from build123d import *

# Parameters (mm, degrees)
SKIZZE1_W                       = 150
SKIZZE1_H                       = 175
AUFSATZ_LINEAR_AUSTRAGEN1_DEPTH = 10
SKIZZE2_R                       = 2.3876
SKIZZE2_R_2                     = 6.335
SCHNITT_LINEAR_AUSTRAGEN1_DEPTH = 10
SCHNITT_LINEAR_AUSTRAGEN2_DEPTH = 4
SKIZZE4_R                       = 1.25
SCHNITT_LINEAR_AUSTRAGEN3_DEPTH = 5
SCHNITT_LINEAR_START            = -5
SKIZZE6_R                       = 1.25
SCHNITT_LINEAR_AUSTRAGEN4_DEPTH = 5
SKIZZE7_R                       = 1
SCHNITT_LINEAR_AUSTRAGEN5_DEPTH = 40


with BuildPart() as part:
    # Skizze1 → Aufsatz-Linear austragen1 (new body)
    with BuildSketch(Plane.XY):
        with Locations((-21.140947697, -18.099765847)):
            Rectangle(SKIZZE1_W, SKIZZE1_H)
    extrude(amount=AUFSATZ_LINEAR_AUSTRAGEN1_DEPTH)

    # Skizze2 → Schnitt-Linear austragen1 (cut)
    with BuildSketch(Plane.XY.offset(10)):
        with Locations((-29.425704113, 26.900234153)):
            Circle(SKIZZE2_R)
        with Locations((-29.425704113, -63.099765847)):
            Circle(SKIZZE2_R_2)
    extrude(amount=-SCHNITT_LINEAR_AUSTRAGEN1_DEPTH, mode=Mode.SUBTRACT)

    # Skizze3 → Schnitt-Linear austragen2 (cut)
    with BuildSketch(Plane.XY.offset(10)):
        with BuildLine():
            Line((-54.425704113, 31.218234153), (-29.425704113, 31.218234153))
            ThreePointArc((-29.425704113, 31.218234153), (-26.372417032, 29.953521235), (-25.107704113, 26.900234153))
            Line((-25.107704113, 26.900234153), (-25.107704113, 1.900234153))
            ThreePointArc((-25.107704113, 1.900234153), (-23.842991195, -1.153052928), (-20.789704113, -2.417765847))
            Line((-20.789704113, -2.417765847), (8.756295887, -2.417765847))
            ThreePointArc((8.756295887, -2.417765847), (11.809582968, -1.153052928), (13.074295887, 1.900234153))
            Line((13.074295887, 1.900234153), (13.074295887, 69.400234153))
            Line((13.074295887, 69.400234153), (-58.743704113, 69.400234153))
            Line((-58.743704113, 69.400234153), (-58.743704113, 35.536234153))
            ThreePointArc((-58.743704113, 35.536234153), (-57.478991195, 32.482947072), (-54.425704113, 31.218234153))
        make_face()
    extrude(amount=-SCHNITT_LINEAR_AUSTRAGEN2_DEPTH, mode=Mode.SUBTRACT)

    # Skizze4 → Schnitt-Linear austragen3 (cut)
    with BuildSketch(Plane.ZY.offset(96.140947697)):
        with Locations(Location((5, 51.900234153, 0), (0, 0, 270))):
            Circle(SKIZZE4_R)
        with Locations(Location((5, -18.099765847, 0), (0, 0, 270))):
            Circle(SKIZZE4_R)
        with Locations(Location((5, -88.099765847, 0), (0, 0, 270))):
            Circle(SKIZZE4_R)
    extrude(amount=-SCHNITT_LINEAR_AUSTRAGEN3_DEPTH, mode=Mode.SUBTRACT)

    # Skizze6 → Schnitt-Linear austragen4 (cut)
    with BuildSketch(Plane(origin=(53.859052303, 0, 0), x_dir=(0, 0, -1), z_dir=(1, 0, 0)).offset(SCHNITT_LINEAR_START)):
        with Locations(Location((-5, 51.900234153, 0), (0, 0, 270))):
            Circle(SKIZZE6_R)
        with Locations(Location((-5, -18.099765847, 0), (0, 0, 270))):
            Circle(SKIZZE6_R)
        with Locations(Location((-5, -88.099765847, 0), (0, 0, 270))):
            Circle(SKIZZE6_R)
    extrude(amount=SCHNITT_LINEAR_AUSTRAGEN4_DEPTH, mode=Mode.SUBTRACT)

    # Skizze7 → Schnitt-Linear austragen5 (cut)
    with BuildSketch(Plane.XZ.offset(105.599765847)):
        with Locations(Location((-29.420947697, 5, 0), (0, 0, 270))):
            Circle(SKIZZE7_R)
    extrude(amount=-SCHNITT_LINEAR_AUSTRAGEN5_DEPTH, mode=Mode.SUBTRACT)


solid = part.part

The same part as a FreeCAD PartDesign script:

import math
import FreeCAD as App
import Part
import Sketcher
from FreeCAD import Vector


def add_polygon(sketch, points):
    """Adds a closed chain of lines whose ends are joined by coincident constraints."""
    first, n = sketch.GeometryCount, len(points)
    for a, b in zip(points, points[1:] + points[:1]):
        sketch.addGeometry(Part.LineSegment(App.Vector(*a, 0), App.Vector(*b, 0)), False)
    for i in range(n):
        sketch.addConstraint(Sketcher.Constraint("Coincident", first + i, 2, first + (i + 1) % n, 1))

doc = App.newDocument("Part")
body = doc.addObject("PartDesign::Body", "Body")

# Sketch on XY plane
sketch1 = body.newObject("Sketcher::SketchObject", "Sketch")
sketch1.AttachmentSupport = (doc.getObject("XY_Plane"), [""])
sketch1.MapMode = "FlatFace"
add_polygon(sketch1, [(-96.140948, 69.400234), (-96.140948, -105.599766), (53.859052, -105.599766), (53.859052, 69.400234)])  # lines 0-3
sketch1.addConstraint([
    Sketcher.Constraint("Vertical", 0),
    Sketcher.Constraint("Horizontal", 1),
    Sketcher.Constraint("Vertical", 2),
    Sketcher.Constraint("Horizontal", 3),
    Sketcher.Constraint("DistanceX", 1, 1, 1, 2, 150.0),
    Sketcher.Constraint("DistanceY", 0, 2, 0, 1, 175.0),
    Sketcher.Constraint("DistanceX", 0, 2, -1, 1, 96.140948),
    Sketcher.Constraint("DistanceY", 0, 2, -1, 1, 105.599766),
])
pad1 = body.newObject("PartDesign::Pad", "Pad")
pad1.Profile = sketch1
pad1.Length = 10

# Sketch on XY plane
sketch2 = body.newObject("Sketcher::SketchObject", "Sketch001")
sketch2.AttachmentSupport = (doc.getObject("XY_Plane"), [""])
sketch2.MapMode = "FlatFace"
sketch2.AttachmentOffset = App.Placement(Vector(0, 0, 10), App.Rotation())
sketch2.addGeometry([
    Part.Circle(Vector(-29.425704, 26.900234, 0), Vector(0, 0, 1), 2.3876),
    Part.Circle(Vector(-29.425704, -63.099766, 0), Vector(0, 0, 1), 6.335),
], False)
sketch2.addConstraint([
    Sketcher.Constraint("Vertical", 0, 3, 1, 3),
    Sketcher.Constraint("Diameter", 1, 12.67),
    Sketcher.Constraint("DistanceY", 1, 3, 0, 3, 90.0),
    Sketcher.Constraint("Diameter", 0, 4.7752),
    Sketcher.Constraint("DistanceX", 0, 3, -1, 1, 29.425704),
    Sketcher.Constraint("DistanceY", -1, 1, 0, 3, 26.900234),
])
pocket1 = body.newObject("PartDesign::Pocket", "Pocket")
pocket1.Profile = sketch2
pocket1.Length = 10

# Sketch on XY plane
sketch3 = body.newObject("Sketcher::SketchObject", "Sketch002")
sketch3.AttachmentSupport = (doc.getObject("XY_Plane"), [""])
sketch3.MapMode = "FlatFace"
sketch3.AttachmentOffset = App.Placement(Vector(0, 0, 10), App.Rotation())
sketch3.addGeometry([
    Part.LineSegment(Vector(-54.425704, 31.218234, 0), Vector(-29.425704, 31.218234, 0)),  # 0
    Part.ArcOfCircle(Part.Circle(Vector(-29.425704, 26.900234, 0), Vector(0, 0, 1), 4.318), math.radians(0), math.radians(90)),  # 1
    Part.LineSegment(Vector(-25.107704, 26.900234, 0), Vector(-25.107704, 1.900234, 0)),  # 2
    Part.ArcOfCircle(Part.Circle(Vector(-20.789704, 1.900234, 0), Vector(0, 0, 1), 4.318), math.radians(180), math.radians(270)),  # 3
    Part.LineSegment(Vector(-20.789704, -2.417766, 0), Vector(8.756296, -2.417766, 0)),  # 4
    Part.ArcOfCircle(Part.Circle(Vector(8.756296, 1.900234, 0), Vector(0, 0, 1), 4.318), math.radians(-90), math.radians(0)),  # 5
    Part.LineSegment(Vector(13.074296, 1.900234, 0), Vector(13.074296, 69.400234, 0)),  # 6
    Part.LineSegment(Vector(13.074296, 69.400234, 0), Vector(-58.743704, 69.400234, 0)),  # 7
    Part.LineSegment(Vector(-58.743704, 69.400234, 0), Vector(-58.743704, 35.536234, 0)),  # 8
    Part.ArcOfCircle(Part.Circle(Vector(-54.425704, 35.536234, 0), Vector(0, 0, 1), 4.318), math.radians(180), math.radians(270)),  # 9
], False)
sketch3.addConstraint([
    Sketcher.Constraint("Tangent", 0, 2, 1, 2),
    Sketcher.Constraint("Tangent", 1, 1, 2, 1),
    Sketcher.Constraint("Tangent", 2, 2, 3, 1),
    Sketcher.Constraint("Tangent", 3, 2, 4, 1),
    Sketcher.Constraint("Tangent", 4, 2, 5, 1),
    Sketcher.Constraint("Tangent", 5, 2, 6, 1),
    Sketcher.Constraint("Coincident", 6, 2, 7, 1),
    Sketcher.Constraint("Coincident", 7, 2, 8, 1),
    Sketcher.Constraint("Tangent", 8, 2, 9, 1),
    Sketcher.Constraint("Tangent", 9, 2, 0, 1),
    Sketcher.Constraint("Horizontal", 0),
    Sketcher.Constraint("Vertical", 2),
    Sketcher.Constraint("Horizontal", 4),
    Sketcher.Constraint("Vertical", 6),
    Sketcher.Constraint("Horizontal", 7),
    Sketcher.Constraint("Vertical", 8),
    Sketcher.Constraint("Equal", 1, 3),
    Sketcher.Constraint("Equal", 3, 5),
    Sketcher.Constraint("Equal", 5, 9),
    Sketcher.Constraint("Equal", 0, 2),
    Sketcher.Constraint("DistanceX", 0, 1, 0, 2, 25.0),
    Sketcher.Constraint("DistanceY", 6, 1, 6, 2, 67.5),
    Sketcher.Constraint("Radius", 1, 4.318),
    Sketcher.Constraint("DistanceX", 0, 2, 6, 2, 42.5),
    Sketcher.Constraint("DistanceX", 1, 3, -1, 1, 29.425704),
    Sketcher.Constraint("DistanceY", -1, 1, 1, 3, 26.900234),
])
pocket2 = body.newObject("PartDesign::Pocket", "Pocket001")
pocket2.Profile = sketch3
pocket2.Length = 4

# Sketch on YZ plane
sketch4 = body.newObject("Sketcher::SketchObject", "Sketch003")
sketch4.AttachmentSupport = (doc.getObject("YZ_Plane"), [""])
sketch4.MapMode = "FlatFace"
sketch4.AttachmentOffset = App.Placement(Vector(0, 0, -96.140948), App.Rotation())
sketch4.addGeometry([
    Part.Circle(Vector(51.900234, 5, 0), Vector(0, 0, 1), 1.25),
    Part.Circle(Vector(-18.099766, 5, 0), Vector(0, 0, 1), 1.25),
    Part.Circle(Vector(-88.099766, 5, 0), Vector(0, 0, 1), 1.25),
], False)
sketch4.addConstraint([
    Sketcher.Constraint("Equal", 0, 1),
    Sketcher.Constraint("Equal", 1, 2),
    Sketcher.Constraint("Horizontal", 0, 3, 1, 3),
    Sketcher.Constraint("Horizontal", 1, 3, 2, 3),
    Sketcher.Constraint("Diameter", 0, 2.5),
    Sketcher.Constraint("DistanceY", -1, 1, 0, 3, 5.0),
    Sketcher.Constraint("DistanceX", 1, 3, 0, 3, 70.0),
    Sketcher.Constraint("DistanceX", 2, 3, 1, 3, 70.0),
    Sketcher.Constraint("DistanceX", -1, 1, 0, 3, 51.900234),
])
pocket3 = body.newObject("PartDesign::Pocket", "Pocket002")
pocket3.Profile = sketch4
pocket3.Length = 5
pocket3.Reversed = True

# Sketch on YZ plane
sketch5 = body.newObject("Sketcher::SketchObject", "Sketch004")
sketch5.AttachmentSupport = (doc.getObject("YZ_Plane"), [""])
sketch5.MapMode = "FlatFace"
sketch5.AttachmentOffset = App.Placement(Vector(0, 0, 48.859052), App.Rotation())
sketch5.addGeometry([
    Part.Circle(Vector(51.900234, 5, 0), Vector(0, 0, 1), 1.25),
    Part.Circle(Vector(-18.099766, 5, 0), Vector(0, 0, 1), 1.25),
    Part.Circle(Vector(-88.099766, 5, 0), Vector(0, 0, 1), 1.25),
], False)
sketch5.addConstraint([
    Sketcher.Constraint("Equal", 0, 1),
    Sketcher.Constraint("Equal", 1, 2),
    Sketcher.Constraint("Horizontal", 0, 3, 1, 3),
    Sketcher.Constraint("Horizontal", 1, 3, 2, 3),
    Sketcher.Constraint("Diameter", 0, 2.5),
    Sketcher.Constraint("DistanceY", -1, 1, 0, 3, 5.0),
    Sketcher.Constraint("DistanceX", 1, 3, 0, 3, 70.0),
    Sketcher.Constraint("DistanceX", 2, 3, 1, 3, 70.0),
    Sketcher.Constraint("DistanceX", -1, 1, 0, 3, 51.900234),
])
pocket4 = body.newObject("PartDesign::Pocket", "Pocket003")
pocket4.Profile = sketch5
pocket4.Length = 5
pocket4.Reversed = True

# Sketch on XZ plane
sketch6 = body.newObject("Sketcher::SketchObject", "Sketch005")
sketch6.AttachmentSupport = (doc.getObject("XZ_Plane"), [""])
sketch6.MapMode = "FlatFace"
sketch6.AttachmentOffset = App.Placement(Vector(0, 0, 105.599766), App.Rotation())
sketch6.addGeometry(Part.Circle(Vector(-29.420948, 5, 0), Vector(0, 0, 1), 1), False)
sketch6.addConstraint([
    Sketcher.Constraint("Diameter", 0, 2.0),
    Sketcher.Constraint("DistanceY", -1, 1, 0, 3, 5.0),
    Sketcher.Constraint("DistanceX", 0, 3, -1, 1, 29.420948),
])
pocket5 = body.newObject("PartDesign::Pocket", "Pocket004")
pocket5.Profile = sketch6
pocket5.Length = 40

doc.recompute()
